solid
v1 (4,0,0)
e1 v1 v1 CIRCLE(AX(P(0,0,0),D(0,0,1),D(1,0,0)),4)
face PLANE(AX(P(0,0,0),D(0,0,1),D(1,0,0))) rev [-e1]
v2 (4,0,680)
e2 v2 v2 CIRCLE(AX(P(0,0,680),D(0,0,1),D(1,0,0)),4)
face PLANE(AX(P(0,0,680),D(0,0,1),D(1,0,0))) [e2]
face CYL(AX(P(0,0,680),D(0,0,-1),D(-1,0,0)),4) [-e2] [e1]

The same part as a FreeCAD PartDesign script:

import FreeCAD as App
import Part
import Sketcher

doc = App.newDocument("Part")
body = doc.addObject("PartDesign::Body", "Body")

sketch1 = doc.addObject("Sketcher::SketchObject", "Sketch")
body.addObject(sketch1)
sketch1.AttachmentSupport = (doc.XY_Plane, [""])
sketch1.MapMode = "FlatFace"
sketch1.addGeometry(Part.Circle(App.Vector(0, 0, 0), App.Vector(0, 0, 1), 4), False)
sketch1.addConstraint(Sketcher.Constraint("Coincident", 0, 3, -1, 1))
sketch1.addConstraint(Sketcher.Constraint("Diameter", 0, 8.0))
pad1 = doc.addObject("PartDesign::Pad", "Pad")
body.addObject(pad1)
pad1.Profile = sketch1
pad1.Length = 680

doc.recompute()
